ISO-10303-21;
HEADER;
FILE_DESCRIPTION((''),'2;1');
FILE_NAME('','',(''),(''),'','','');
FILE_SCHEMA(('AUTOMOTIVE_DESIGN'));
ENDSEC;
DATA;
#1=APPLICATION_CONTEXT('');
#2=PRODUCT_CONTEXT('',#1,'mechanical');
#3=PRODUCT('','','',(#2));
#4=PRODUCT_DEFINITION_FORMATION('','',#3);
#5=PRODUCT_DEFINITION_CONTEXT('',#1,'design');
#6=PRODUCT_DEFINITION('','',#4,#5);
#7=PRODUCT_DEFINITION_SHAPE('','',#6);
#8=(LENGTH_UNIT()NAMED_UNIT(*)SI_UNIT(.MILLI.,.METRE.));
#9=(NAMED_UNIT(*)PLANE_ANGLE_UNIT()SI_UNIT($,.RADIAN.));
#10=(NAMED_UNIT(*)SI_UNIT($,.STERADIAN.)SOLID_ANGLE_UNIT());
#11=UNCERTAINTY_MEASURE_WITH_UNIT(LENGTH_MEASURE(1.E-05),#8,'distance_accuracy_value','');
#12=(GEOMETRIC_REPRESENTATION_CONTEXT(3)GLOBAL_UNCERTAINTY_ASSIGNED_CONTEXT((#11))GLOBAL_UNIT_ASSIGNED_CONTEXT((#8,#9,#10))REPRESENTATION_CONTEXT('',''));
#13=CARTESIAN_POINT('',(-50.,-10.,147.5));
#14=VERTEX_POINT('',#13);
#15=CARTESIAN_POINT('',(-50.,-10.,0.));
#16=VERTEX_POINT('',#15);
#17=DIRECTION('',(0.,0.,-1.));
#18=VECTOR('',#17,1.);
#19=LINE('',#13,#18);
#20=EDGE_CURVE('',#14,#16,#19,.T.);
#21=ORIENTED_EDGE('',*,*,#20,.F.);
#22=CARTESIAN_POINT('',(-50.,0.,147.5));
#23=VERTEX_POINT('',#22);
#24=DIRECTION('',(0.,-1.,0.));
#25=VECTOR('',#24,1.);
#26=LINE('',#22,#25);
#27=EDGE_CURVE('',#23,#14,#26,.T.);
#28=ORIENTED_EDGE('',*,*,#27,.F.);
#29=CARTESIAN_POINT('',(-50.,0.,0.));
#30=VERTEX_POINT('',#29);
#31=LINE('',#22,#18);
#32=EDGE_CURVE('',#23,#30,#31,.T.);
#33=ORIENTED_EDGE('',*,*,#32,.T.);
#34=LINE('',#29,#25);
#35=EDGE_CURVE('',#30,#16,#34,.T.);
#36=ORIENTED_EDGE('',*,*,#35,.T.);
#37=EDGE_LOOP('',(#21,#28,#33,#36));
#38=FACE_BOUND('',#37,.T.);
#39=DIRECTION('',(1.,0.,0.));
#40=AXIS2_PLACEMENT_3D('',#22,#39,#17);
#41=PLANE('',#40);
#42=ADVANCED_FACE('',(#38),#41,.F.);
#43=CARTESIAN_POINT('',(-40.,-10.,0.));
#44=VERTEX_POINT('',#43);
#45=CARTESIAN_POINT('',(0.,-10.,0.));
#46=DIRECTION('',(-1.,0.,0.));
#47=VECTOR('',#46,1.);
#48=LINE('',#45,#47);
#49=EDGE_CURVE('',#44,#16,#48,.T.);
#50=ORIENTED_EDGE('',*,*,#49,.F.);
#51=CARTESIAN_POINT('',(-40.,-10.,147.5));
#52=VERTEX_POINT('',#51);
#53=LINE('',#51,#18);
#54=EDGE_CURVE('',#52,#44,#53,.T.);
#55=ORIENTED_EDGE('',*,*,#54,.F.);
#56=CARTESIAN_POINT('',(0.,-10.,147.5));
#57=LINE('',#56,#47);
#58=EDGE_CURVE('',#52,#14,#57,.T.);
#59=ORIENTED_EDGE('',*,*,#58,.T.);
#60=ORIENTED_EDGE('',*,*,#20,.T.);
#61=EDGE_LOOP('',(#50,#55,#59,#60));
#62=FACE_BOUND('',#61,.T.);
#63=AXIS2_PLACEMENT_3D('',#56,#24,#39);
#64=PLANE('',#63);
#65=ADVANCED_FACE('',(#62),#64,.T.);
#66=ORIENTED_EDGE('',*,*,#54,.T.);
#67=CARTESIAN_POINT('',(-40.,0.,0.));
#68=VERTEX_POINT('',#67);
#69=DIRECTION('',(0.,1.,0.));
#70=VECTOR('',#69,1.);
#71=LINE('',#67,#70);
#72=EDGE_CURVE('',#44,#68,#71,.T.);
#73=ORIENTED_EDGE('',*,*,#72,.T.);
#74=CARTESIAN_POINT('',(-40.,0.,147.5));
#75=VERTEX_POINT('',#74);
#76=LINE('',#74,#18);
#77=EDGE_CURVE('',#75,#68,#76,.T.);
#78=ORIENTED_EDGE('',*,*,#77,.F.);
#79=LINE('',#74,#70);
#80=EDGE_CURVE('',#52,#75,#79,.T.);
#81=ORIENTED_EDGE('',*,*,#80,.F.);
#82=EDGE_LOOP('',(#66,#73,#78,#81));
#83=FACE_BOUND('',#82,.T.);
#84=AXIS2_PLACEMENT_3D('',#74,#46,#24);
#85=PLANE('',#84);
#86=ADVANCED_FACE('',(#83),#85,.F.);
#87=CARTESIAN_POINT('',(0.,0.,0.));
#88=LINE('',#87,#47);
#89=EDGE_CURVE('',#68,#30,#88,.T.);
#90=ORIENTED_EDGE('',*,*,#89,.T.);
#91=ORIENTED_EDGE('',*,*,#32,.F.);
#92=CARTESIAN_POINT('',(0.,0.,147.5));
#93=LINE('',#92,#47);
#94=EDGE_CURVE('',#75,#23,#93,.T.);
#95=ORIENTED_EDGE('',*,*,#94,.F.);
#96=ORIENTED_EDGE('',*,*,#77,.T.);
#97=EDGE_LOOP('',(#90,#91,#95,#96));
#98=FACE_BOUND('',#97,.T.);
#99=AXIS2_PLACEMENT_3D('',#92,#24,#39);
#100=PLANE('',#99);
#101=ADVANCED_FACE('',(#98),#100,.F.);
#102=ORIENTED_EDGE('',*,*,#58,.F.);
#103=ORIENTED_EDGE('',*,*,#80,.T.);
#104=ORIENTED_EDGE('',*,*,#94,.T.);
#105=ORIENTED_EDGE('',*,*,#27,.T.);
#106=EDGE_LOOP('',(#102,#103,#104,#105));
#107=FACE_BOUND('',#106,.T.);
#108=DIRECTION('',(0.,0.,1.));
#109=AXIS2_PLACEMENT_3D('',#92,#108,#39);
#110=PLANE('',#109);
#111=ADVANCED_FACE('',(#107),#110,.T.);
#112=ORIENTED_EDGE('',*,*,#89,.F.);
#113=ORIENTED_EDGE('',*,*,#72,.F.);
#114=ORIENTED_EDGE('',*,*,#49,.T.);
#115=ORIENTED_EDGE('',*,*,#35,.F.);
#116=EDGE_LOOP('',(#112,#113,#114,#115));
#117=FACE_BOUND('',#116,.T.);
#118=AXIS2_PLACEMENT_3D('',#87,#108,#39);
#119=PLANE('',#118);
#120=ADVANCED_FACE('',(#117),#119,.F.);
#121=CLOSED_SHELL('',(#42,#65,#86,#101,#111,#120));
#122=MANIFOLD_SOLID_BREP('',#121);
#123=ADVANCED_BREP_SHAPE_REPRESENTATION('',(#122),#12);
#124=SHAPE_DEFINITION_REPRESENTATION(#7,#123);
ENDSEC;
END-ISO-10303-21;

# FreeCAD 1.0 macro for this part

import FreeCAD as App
import Part
import Sketcher

V = App.Vector


def add_polygon(sketch, points):
    """Adds a closed chain of lines whose ends are joined by coincident constraints."""
    first, n = sketch.GeometryCount, len(points)
    for a, b in zip(points, points[1:] + points[:1]):
        sketch.addGeometry(Part.LineSegment(App.Vector(*a, 0), App.Vector(*b, 0)), False)
    for i in range(n):
        sketch.addConstraint(Sketcher.Constraint("Coincident", first + i, 2, first + (i + 1) % n, 1))

doc = App.newDocument("Part")
params = doc.addObject("Spreadsheet::Sheet", "Params")
for row, (alias, value) in enumerate([
    ("sketch1_width", "10 mm"),
    ("pad1_length", "147.5 mm"),
], start=1):
    params.set(f"A{row}", alias)
    params.set(f"B{row}", "=" + value)
    params.setAlias(f"B{row}", alias)

body = doc.addObject("PartDesign::Body", "Body")

# Sketch on XY plane
sketch1 = doc.addObject("Sketcher::SketchObject", "Sketch")
body.addObject(sketch1)
sketch1.AttachmentSupport = (doc.XY_Plane, [""])
sketch1.MapMode = "FlatFace"
add_polygon(sketch1, [(-50, 0), (-50, -10), (-40, -10), (-40, 0)])  # lines 0-3
sketch1.addConstraint(Sketcher.Constraint("Vertical", 0))
sketch1.addConstraint(Sketcher.Constraint("Horizontal", 1))
sketch1.addConstraint(Sketcher.Constraint("Vertical", 2))
sketch1.addConstraint(Sketcher.Constraint("Horizontal", 3))
sketch1.addConstraint(Sketcher.Constraint("PointOnObject", 2, 2, -1))
sketch1.addConstraint(Sketcher.Constraint("Equal", 3, 0))
sketch1.addConstraint(Sketcher.Constraint("DistanceX", 1, 1, 1, 2, 10.0))
sketch1.addConstraint(Sketcher.Constraint("DistanceX", 0, 2, -1, 1, 50.0))
sketch1.setExpression("Constraints[10]", "Params.sketch1_width")
pad1 = doc.addObject("PartDesign::Pad", "Pad")
body.addObject(pad1)
pad1.Profile = sketch1
pad1.setExpression("Length", "Params.pad1_length")

doc.recompute()
